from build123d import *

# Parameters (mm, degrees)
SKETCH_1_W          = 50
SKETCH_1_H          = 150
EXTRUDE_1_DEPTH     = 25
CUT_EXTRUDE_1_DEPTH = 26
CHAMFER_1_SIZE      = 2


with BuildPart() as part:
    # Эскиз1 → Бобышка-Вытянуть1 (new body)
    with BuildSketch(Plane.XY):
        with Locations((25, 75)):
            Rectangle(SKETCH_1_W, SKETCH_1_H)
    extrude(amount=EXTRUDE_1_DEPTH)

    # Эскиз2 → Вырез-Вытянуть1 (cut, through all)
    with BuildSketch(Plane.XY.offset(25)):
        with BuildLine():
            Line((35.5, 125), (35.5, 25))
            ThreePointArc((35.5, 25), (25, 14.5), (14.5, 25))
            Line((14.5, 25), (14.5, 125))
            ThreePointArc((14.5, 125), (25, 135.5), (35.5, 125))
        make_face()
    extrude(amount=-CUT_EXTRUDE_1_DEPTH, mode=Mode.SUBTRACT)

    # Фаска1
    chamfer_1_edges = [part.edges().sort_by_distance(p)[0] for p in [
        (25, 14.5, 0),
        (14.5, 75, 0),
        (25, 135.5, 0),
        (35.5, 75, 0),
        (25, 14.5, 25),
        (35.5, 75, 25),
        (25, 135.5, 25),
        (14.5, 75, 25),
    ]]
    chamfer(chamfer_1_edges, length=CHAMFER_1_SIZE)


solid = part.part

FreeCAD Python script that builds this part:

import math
import FreeCAD as App
import Part
import Sketcher


def edges_at(feature, points):
    """Names of the edges that pass closest to the given points."""
    edges = feature.Shape.Edges
    near = lambda p: min(range(len(edges)), key=lambda i: edges[i].distToShape(Part.Vertex(*p))[0])
    return sorted({f"Edge{near(p) + 1}" for p in points})


def add_polygon(sketch, points):
    """Adds a closed chain of lines whose ends are joined by coincident constraints."""
    first, n = sketch.GeometryCount, len(points)
    for a, b in zip(points, points[1:] + points[:1]):
        sketch.addGeometry(Part.LineSegment(App.Vector(*a, 0), App.Vector(*b, 0)), False)
    for i in range(n):
        sketch.addConstraint(Sketcher.Constraint("Coincident", first + i, 2, first + (i + 1) % n, 1))

doc = App.newDocument("Part")
body = doc.addObject("PartDesign::Body", "Body")

sketch1 = body.newObject("Sketcher::SketchObject", "Sketch")
sketch1.AttachmentSupport = (doc.getObject("XY_Plane"), [""])
sketch1.MapMode = "FlatFace"
add_polygon(sketch1, [(0, 150), (0, 0), (50, 0), (50, 150)])
sketch1.addConstraint(Sketcher.Constraint("Vertical", 0))
sketch1.addConstraint(Sketcher.Constraint("Horizontal", 1))
sketch1.addConstraint(Sketcher.Constraint("Vertical", 2))
sketch1.addConstraint(Sketcher.Constraint("Horizontal", 3))
sketch1.addConstraint(Sketcher.Constraint("Coincident", 0, 2, -1, 1))
sketch1.addConstraint(Sketcher.Constraint("DistanceX", 1, 1, 1, 2, 50.0))
sketch1.addConstraint(Sketcher.Constraint("DistanceY", 0, 2, 0, 1, 150.0))
pad1 = body.newObject("PartDesign::Pad", "Pad")
pad1.Profile = sketch1
pad1.Length = 25

sketch2 = body.newObject("Sketcher::SketchObject", "Sketch001")
sketch2.AttachmentSupport = (doc.getObject("XY_Plane"), [""])
sketch2.MapMode = "FlatFace"
sketch2.AttachmentOffset = App.Placement(App.Vector(0, 0, 25), App.Rotation())
sketch2.addGeometry(Part.LineSegment(App.Vector(36, 25, 0), App.Vector(36, 125, 0)), False)
sketch2.addGeometry(Part.ArcOfCircle(Part.Circle(App.Vector(25, 125, 0), App.Vector(0, 0, 1), 10), math.radians(0), math.radians(180)), False)
sketch2.addGeometry(Part.LineSegment(App.Vector(14, 125, 0), App.Vector(14, 25, 0)), False)
sketch2.addGeometry(Part.ArcOfCircle(Part.Circle(App.Vector(25, 25, 0), App.Vector(0, 0, 1), 10), math.radians(180), math.radians(360)), False)
sketch2.addConstraint(Sketcher.Constraint("Tangent", 0, 2, 1, 1))
sketch2.addConstraint(Sketcher.Constraint("Tangent", 1, 2, 2, 1))
sketch2.addConstraint(Sketcher.Constraint("Tangent", 2, 2, 3, 1))
sketch2.addConstraint(Sketcher.Constraint("Tangent", 3, 2, 0, 1))
sketch2.addConstraint(Sketcher.Constraint("Vertical", 0))
sketch2.addConstraint(Sketcher.Constraint("Vertical", 2))
sketch2.addConstraint(Sketcher.Constraint("Radius", 1, 10.5))
sketch2.addConstraint(Sketcher.Constraint("DistanceY", 0, 1, 0, 2, 100.0))
sketch2.addConstraint(Sketcher.Constraint("DistanceX", -1, 1, 1, 3, 25.0))
sketch2.addConstraint(Sketcher.Constraint("DistanceY", -1, 1, 1, 3, 125.0))
pocket1 = body.newObject("PartDesign::Pocket", "Pocket")
pocket1.Profile = sketch2
pocket1.Type = "ThroughAll"
doc.recompute()

chamfer = body.newObject("PartDesign::Chamfer", "Chamfer")
chamfer.Base = (pocket1, edges_at(pocket1, [
    (25, 14.5, 0),
    (14.5, 75, 0),
    (25, 135.5, 0),
    (35.5, 75, 0),
    (25, 14.5, 25),
    (35.5, 75, 25),
    (25, 135.5, 25),
    (14.5, 75, 25),
]))
chamfer.Size = 2

doc.recompute()
